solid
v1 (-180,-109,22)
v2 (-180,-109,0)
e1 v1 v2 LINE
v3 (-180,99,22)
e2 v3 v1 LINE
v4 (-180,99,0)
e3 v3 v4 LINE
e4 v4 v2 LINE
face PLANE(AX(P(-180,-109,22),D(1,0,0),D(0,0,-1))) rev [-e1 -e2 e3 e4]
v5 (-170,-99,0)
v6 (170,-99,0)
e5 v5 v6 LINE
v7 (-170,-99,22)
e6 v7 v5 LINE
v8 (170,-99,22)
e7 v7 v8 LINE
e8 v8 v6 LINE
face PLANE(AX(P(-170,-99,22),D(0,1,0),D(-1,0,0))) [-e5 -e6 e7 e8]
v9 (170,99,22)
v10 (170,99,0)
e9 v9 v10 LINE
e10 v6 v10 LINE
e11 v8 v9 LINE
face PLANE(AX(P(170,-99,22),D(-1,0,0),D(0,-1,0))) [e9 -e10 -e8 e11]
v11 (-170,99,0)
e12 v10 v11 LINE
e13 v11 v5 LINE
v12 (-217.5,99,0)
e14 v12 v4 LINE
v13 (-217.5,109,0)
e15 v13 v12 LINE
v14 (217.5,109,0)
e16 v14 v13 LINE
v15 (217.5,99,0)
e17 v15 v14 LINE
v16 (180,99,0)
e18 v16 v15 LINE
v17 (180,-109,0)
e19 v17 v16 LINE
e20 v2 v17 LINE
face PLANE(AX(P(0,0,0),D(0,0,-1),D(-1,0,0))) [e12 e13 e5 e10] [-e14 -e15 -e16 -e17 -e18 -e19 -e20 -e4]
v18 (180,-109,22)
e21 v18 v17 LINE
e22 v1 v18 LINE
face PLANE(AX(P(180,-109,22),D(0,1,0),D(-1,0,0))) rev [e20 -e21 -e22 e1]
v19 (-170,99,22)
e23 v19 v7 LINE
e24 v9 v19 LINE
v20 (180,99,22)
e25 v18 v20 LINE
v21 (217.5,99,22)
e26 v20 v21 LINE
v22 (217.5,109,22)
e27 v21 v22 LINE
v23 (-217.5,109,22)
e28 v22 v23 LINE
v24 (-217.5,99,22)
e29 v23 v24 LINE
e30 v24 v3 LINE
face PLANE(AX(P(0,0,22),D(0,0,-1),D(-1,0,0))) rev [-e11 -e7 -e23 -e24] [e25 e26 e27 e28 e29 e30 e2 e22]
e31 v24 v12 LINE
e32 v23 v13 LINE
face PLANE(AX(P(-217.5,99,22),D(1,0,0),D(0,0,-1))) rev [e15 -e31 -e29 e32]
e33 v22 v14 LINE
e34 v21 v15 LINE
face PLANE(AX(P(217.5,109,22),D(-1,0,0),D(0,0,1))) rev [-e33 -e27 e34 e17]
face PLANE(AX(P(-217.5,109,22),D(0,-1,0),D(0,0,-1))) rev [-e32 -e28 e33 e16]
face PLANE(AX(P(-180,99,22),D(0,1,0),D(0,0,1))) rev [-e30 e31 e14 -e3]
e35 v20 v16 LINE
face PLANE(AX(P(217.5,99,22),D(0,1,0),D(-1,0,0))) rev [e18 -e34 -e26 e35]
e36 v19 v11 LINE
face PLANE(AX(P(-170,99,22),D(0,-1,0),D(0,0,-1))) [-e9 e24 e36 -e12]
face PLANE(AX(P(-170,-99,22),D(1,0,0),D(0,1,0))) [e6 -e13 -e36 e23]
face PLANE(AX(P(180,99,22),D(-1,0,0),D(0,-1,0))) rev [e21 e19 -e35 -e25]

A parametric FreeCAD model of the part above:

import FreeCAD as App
import Part
import Sketcher

doc = App.newDocument("Part")
params = doc.addObject("Spreadsheet::Sheet", "Params")
for row, (alias, value) in enumerate([
    ("sketch1_width", "435 mm"),
    ("sketch1_width2", "360 mm"),
    ("sketch1_width3", "340 mm"),
    ("sketch1_height", "10 mm"),
    ("sketch1_height2", "208 mm"),
    ("pad1_length", "22 mm"),
], start=1):
    params.set(f"A{row}", alias)
    params.set(f"B{row}", "=" + value)
    params.setAlias(f"B{row}", alias)

body = doc.addObject("PartDesign::Body", "Body")

# Sketch on XY plane
sketch1 = body.newObject("Sketcher::SketchObject", "Sketch")
sketch1.AttachmentSupport = (doc.getObject("XY_Plane"), [""])
sketch1.MapMode = "FlatFace"
sketch1.addGeometry(Part.LineSegment(App.Vector(218, 109, 0), App.Vector(-218, 109, 0)), False)
sketch1.addGeometry(Part.LineSegment(App.Vector(-218, 109, 0), App.Vector(-218, 99, 0)), False)
sketch1.addGeometry(Part.LineSegment(App.Vector(-218, 99, 0), App.Vector(-180, 99, 0)), False)
sketch1.addGeometry(Part.LineSegment(App.Vector(-180, 99, 0), App.Vector(-180, -109, 0)), False)
sketch1.addGeometry(Part.LineSegment(App.Vector(-180, -109, 0), App.Vector(180, -109, 0)), False)
sketch1.addGeometry(Part.LineSegment(App.Vector(180, -109, 0), App.Vector(180, 99, 0)), False)
sketch1.addGeometry(Part.LineSegment(App.Vector(180, 99, 0), App.Vector(218, 99, 0)), False)
sketch1.addGeometry(Part.LineSegment(App.Vector(218, 99, 0), App.Vector(218, 109, 0)), False)
sketch1.addGeometry(Part.LineSegment(App.Vector(-170, -99, 0), App.Vector(-170, 99, 0)), False)
sketch1.addGeometry(Part.LineSegment(App.Vector(-170, 99, 0), App.Vector(170, 99, 0)), False)
sketch1.addGeometry(Part.LineSegment(App.Vector(170, 99, 0), App.Vector(170, -99, 0)), False)
sketch1.addGeometry(Part.LineSegment(App.Vector(170, -99, 0), App.Vector(-170, -99, 0)), False)
sketch1.addConstraint(Sketcher.Constraint("Coincident", 0, 2, 1, 1))
sketch1.addConstraint(Sketcher.Constraint("Coincident", 1, 2, 2, 1))
sketch1.addConstraint(Sketcher.Constraint("Coincident", 2, 2, 3, 1))
sketch1.addConstraint(Sketcher.Constraint("Coincident", 3, 2, 4, 1))
sketch1.addConstraint(Sketcher.Constraint("Coincident", 4, 2, 5, 1))
sketch1.addConstraint(Sketcher.Constraint("Coincident", 5, 2, 6, 1))
sketch1.addConstraint(Sketcher.Constraint("Coincident", 6, 2, 7, 1))
sketch1.addConstraint(Sketcher.Constraint("Coincident", 7, 2, 0, 1))
sketch1.addConstraint(Sketcher.Constraint("Coincident", 8, 2, 9, 1))
sketch1.addConstraint(Sketcher.Constraint("Coincident", 9, 2, 10, 1))
sketch1.addConstraint(Sketcher.Constraint("Coincident", 10, 2, 11, 1))
sketch1.addConstraint(Sketcher.Constraint("Coincident", 11, 2, 8, 1))
sketch1.addConstraint(Sketcher.Constraint("Horizontal", 0))
sketch1.addConstraint(Sketcher.Constraint("Vertical", 1))
sketch1.addConstraint(Sketcher.Constraint("Horizontal", 2))
sketch1.addConstraint(Sketcher.Constraint("Vertical", 3))
sketch1.addConstraint(Sketcher.Constraint("Horizontal", 4))
sketch1.addConstraint(Sketcher.Constraint("Vertical", 5))
sketch1.addConstraint(Sketcher.Constraint("Horizontal", 6))
sketch1.addConstraint(Sketcher.Constraint("Vertical", 7))
sketch1.addConstraint(Sketcher.Constraint("Vertical", 8))
sketch1.addConstraint(Sketcher.Constraint("Horizontal", 9))
sketch1.addConstraint(Sketcher.Constraint("Vertical", 10))
sketch1.addConstraint(Sketcher.Constraint("Horizontal", 11))
sketch1.addConstraint(Sketcher.Constraint("Symmetric", 8, 2, 10, 2, -1, 1))
sketch1.addConstraint(Sketcher.Constraint("Symmetric", 2, 2, 5, 2, -2))
sketch1.addConstraint(Sketcher.Constraint("Horizontal", 6, 2, 8, 2))
sketch1.addConstraint(Sketcher.Constraint("Equal", 2, 6))
sketch1.addConstraint(Sketcher.Constraint("DistanceX", 0, 2, 0, 1, 435.0))
sketch1.addConstraint(Sketcher.Constraint("DistanceX", 4, 1, 4, 2, 360.0))
sketch1.addConstraint(Sketcher.Constraint("DistanceX", 9, 1, 9, 2, 340.0))
sketch1.addConstraint(Sketcher.Constraint("DistanceY", 1, 2, 1, 1, 10.0))
sketch1.addConstraint(Sketcher.Constraint("DistanceY", 3, 2, 3, 1, 208.0))
sketch1.addConstraint(Sketcher.Constraint("DistanceY", 8, 1, 8, 2, 198.0))
sketch1.setExpression("Constraints[28]", "Params.sketch1_width")
sketch1.setExpression("Constraints[29]", "Params.sketch1_width2")
sketch1.setExpression("Constraints[30]", "Params.sketch1_width3")
sketch1.setExpression("Constraints[31]", "Params.sketch1_height")
sketch1.setExpression("Constraints[32]", "Params.sketch1_height2")
pad1 = body.newObject("PartDesign::Pad", "Pad")
pad1.Profile = sketch1
pad1.setExpression("Length", "Params.pad1_length")

doc.recompute()
